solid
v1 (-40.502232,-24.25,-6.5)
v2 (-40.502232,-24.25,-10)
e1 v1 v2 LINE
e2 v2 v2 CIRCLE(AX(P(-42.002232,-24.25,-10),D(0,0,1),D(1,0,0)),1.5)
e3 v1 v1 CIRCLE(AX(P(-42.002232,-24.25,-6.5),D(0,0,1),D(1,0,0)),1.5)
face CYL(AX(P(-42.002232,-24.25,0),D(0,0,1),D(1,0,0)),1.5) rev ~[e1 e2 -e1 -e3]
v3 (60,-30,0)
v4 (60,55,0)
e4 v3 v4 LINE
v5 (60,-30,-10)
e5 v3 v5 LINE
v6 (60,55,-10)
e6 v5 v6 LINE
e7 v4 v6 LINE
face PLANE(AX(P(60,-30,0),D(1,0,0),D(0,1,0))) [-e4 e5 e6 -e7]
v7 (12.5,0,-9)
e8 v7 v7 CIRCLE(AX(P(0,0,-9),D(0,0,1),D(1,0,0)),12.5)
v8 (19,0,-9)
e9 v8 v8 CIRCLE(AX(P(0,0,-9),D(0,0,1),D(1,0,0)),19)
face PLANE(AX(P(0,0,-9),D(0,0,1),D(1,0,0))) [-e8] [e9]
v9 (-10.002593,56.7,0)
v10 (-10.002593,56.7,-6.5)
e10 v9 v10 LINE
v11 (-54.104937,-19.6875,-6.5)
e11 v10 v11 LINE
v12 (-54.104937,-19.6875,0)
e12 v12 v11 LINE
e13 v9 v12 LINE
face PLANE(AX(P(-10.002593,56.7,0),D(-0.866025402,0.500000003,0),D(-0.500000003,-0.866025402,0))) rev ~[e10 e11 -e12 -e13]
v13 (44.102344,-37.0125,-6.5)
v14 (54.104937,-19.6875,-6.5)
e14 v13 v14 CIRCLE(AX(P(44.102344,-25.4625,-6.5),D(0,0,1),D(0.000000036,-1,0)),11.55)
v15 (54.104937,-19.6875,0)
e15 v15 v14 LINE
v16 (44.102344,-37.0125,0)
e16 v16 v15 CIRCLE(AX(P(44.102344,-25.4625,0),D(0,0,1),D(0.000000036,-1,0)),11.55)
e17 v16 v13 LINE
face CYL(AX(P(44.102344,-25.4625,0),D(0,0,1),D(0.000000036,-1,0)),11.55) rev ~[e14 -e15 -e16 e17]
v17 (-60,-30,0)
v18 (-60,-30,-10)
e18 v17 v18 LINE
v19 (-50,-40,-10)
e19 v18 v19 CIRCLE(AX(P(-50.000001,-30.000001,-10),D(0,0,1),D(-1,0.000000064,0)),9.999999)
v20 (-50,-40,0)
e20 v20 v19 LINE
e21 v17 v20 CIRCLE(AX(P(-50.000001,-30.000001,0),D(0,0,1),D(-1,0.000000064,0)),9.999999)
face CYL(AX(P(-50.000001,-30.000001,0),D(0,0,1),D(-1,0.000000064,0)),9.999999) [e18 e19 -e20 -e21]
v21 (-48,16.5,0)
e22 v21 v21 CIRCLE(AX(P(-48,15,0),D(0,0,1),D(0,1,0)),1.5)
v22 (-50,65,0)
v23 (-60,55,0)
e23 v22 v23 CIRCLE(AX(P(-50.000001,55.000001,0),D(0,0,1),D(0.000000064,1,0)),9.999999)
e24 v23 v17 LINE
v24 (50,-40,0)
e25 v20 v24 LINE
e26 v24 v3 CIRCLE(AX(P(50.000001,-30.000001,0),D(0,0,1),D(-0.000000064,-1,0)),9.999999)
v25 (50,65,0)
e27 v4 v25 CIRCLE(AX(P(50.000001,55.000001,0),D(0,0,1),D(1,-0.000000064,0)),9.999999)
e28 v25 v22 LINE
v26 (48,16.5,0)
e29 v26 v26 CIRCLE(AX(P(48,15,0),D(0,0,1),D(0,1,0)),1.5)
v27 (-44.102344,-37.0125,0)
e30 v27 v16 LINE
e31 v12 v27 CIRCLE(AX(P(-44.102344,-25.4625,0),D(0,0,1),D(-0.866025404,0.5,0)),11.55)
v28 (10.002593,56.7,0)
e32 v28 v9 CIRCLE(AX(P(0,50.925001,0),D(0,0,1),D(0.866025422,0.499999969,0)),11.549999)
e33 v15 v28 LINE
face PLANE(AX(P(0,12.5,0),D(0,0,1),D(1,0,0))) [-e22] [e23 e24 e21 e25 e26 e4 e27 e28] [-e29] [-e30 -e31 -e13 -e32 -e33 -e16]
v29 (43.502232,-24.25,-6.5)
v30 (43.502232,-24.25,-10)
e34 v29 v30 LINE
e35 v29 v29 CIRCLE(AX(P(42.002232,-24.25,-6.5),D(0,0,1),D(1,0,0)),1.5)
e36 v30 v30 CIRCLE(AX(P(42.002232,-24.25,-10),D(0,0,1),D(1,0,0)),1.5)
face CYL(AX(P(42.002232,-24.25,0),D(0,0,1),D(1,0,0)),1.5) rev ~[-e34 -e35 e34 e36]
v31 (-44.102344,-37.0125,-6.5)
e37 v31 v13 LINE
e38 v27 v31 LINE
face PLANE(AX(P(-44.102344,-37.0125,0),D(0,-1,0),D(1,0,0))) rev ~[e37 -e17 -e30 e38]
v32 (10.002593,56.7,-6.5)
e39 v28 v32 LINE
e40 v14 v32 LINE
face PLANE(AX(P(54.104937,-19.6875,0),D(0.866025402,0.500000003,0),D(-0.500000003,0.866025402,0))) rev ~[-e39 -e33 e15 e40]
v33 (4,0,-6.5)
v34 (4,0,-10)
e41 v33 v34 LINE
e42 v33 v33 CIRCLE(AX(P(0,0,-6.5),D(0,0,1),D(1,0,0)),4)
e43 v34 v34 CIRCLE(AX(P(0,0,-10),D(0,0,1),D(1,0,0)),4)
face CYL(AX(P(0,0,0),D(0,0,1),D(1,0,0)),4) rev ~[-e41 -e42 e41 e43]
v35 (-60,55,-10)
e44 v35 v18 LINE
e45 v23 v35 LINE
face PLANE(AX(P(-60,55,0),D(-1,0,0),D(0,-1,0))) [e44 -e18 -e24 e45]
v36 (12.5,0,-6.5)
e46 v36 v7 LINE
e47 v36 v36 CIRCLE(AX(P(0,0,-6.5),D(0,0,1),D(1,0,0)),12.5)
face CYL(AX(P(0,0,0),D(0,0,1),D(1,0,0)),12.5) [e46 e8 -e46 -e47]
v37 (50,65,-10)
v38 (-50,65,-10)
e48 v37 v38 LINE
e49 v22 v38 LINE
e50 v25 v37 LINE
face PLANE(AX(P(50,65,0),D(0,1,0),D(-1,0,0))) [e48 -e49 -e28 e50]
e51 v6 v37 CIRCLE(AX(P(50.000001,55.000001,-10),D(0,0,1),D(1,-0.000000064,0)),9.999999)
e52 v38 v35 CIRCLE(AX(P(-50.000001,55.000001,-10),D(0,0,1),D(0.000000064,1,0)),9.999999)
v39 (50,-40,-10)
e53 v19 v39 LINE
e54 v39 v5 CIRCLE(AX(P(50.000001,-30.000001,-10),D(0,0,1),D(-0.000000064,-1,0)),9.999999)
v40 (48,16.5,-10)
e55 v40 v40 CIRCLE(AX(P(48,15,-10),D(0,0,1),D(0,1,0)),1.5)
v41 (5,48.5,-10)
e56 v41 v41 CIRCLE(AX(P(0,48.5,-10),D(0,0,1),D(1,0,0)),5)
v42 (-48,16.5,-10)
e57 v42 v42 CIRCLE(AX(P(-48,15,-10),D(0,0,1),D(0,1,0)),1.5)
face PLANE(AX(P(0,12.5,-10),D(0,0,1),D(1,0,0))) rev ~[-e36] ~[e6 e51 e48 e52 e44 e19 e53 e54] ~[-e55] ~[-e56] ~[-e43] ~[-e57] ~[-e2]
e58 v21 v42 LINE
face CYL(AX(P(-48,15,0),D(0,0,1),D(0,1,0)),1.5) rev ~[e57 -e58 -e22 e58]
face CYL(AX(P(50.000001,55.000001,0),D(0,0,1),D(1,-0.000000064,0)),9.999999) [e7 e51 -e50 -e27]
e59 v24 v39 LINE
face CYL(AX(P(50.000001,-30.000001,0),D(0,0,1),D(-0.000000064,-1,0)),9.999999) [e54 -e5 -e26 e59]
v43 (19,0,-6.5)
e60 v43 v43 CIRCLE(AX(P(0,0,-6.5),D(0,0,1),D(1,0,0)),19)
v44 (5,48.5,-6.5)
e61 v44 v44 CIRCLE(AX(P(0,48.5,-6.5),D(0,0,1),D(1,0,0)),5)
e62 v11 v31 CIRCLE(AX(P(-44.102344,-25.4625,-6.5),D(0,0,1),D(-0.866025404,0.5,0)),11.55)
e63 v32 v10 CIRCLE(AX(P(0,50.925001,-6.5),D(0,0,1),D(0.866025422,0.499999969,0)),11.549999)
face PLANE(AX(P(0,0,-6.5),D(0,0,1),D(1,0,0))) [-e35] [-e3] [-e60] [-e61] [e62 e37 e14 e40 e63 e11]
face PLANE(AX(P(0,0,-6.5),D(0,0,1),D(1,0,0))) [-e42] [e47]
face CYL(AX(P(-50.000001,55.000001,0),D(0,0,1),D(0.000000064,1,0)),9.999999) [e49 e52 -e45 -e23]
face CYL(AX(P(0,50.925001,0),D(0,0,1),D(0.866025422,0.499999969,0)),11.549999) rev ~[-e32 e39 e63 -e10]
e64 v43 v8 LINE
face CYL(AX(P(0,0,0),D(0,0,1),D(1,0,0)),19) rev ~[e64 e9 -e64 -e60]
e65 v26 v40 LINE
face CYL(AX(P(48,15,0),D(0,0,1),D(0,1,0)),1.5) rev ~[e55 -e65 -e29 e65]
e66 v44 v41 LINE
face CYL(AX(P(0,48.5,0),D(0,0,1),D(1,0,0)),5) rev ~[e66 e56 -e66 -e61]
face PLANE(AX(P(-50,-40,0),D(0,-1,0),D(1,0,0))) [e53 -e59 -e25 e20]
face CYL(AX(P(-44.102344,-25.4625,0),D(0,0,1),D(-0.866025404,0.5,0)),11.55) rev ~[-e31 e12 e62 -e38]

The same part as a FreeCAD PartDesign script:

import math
import FreeCAD as App
import Part
import Sketcher
from FreeCAD import Vector
Q = App.Units.Quantity

doc = App.newDocument("Part")
body = doc.addObject("PartDesign::Body", "Body")

sketch1 = body.newObject("Sketcher::SketchObject", "Sketch")
sketch1.AttachmentSupport = (doc.getObject("XY_Plane"), [""])
sketch1.MapMode = "FlatFace"
sketch1.addGeometry(Part.LineSegment(Vector(-50, -40, 0), Vector(50, -40, 0)), False)
sketch1.addGeometry(Part.ArcOfCircle(Part.Circle(Vector(50.000001, -30.000001, 0), Vector(0, 0, 1), 9.999999), math.radians(-90.000004), math.radians(0.000004)), False)
sketch1.addGeometry(Part.LineSegment(Vector(60, -30, 0), Vector(60, 55, 0)), False)
sketch1.addGeometry(Part.ArcOfCircle(Part.Circle(Vector(50.000001, 55.000001, 0), Vector(0, 0, 1), 9.999999), math.radians(-0.000004), math.radians(90.000004)), False)
sketch1.addGeometry(Part.LineSegment(Vector(50, 65, 0), Vector(-50, 65, 0)), False)
sketch1.addGeometry(Part.ArcOfCircle(Part.Circle(Vector(-50.000001, 55.000001, 0), Vector(0, 0, 1), 9.999999), math.radians(89.999996), math.radians(180.000004)), False)
sketch1.addGeometry(Part.LineSegment(Vector(-60, 55, 0), Vector(-60, -30, 0)), False)
sketch1.addGeometry(Part.ArcOfCircle(Part.Circle(Vector(-50.000001, -30.000001, 0), Vector(0, 0, 1), 9.999999), math.radians(179.999996), math.radians(270.000004)), False)
sketch1.addConstraint(Sketcher.Constraint("Tangent", 0, 2, 1, 1))
sketch1.addConstraint(Sketcher.Constraint("Tangent", 1, 2, 2, 1))
sketch1.addConstraint(Sketcher.Constraint("Tangent", 2, 2, 3, 1))
sketch1.addConstraint(Sketcher.Constraint("Tangent", 3, 2, 4, 1))
sketch1.addConstraint(Sketcher.Constraint("Tangent", 4, 2, 5, 1))
sketch1.addConstraint(Sketcher.Constraint("Tangent", 5, 2, 6, 1))
sketch1.addConstraint(Sketcher.Constraint("Tangent", 6, 2, 7, 1))
sketch1.addConstraint(Sketcher.Constraint("Tangent", 7, 2, 0, 1))
sketch1.addConstraint(Sketcher.Constraint("Horizontal", 0))
sketch1.addConstraint(Sketcher.Constraint("Vertical", 2))
sketch1.addConstraint(Sketcher.Constraint("Horizontal", 4))
sketch1.addConstraint(Sketcher.Constraint("Vertical", 6))
sketch1.addConstraint(Sketcher.Constraint("Equal", 1, 3))
sketch1.addConstraint(Sketcher.Constraint("Equal", 3, 5))
sketch1.addConstraint(Sketcher.Constraint("Equal", 5, 7))
sketch1.addConstraint(Sketcher.Constraint("Radius", 1, Q("9.999999 mm")))
sketch1.addConstraint(Sketcher.Constraint("DistanceX", 0, 1, 0, 2, Q("100 mm")))
sketch1.addConstraint(Sketcher.Constraint("DistanceY", 2, 1, 2, 2, Q("85 mm")))
sketch1.addConstraint(Sketcher.Constraint("DistanceX", -1, 1, 1, 3, Q("50.000001 mm")))
sketch1.addConstraint(Sketcher.Constraint("DistanceY", 1, 3, -1, 1, Q("30.000001 mm")))
pad1 = body.newObject("PartDesign::Pad", "Pad")
pad1.Profile = sketch1
pad1.Length = 10
pad1.Reversed = True

sketch2 = body.newObject("Sketcher::SketchObject", "Sketch001")
sketch2.AttachmentSupport = (doc.getObject("XY_Plane"), [""])
sketch2.MapMode = "FlatFace"
sketch2.addGeometry(Part.Circle(Vector(-42.002232, -24.25, 0), Vector(0, 0, 1), 1.5), False)
sketch2.addGeometry(Part.Circle(Vector(42.002232, -24.25, 0), Vector(0, 0, 1), 1.5), False)
sketch2.addGeometry(Part.Circle(Vector(0, 48.5, 0), Vector(0, 0, 1), 5), False)
sketch2.addGeometry(Part.Circle(Vector(0, 0, 0), Vector(0, 0, 1), 4), False)
sketch2.addConstraint(Sketcher.Constraint("Coincident", 3, 3, -1, 1))
sketch2.addConstraint(Sketcher.Constraint("Equal", 0, 1))
sketch2.addConstraint(Sketcher.Constraint("Symmetric", 0, 3, 1, 3, -2))
sketch2.addConstraint(Sketcher.Constraint("PointOnObject", 2, 3, -2))
sketch2.addConstraint(Sketcher.Constraint("Diameter", 0, Q("3 mm")))
sketch2.addConstraint(Sketcher.Constraint("Diameter", 2, Q("10 mm")))
sketch2.addConstraint(Sketcher.Constraint("Diameter", 3, Q("8 mm")))
sketch2.addConstraint(Sketcher.Constraint("DistanceY", -1, 1, 2, 3, Q("48.5 mm")))
sketch2.addConstraint(Sketcher.Constraint("DistanceY", 0, 3, -1, 1, Q("24.25 mm")))
sketch2.addConstraint(Sketcher.Constraint("DistanceX", 0, 3, -1, 1, Q("42.002232 mm")))
pocket1 = body.newObject("PartDesign::Pocket", "Pocket")
pocket1.Profile = sketch2
pocket1.Type = "ThroughAll"

sketch3 = body.newObject("Sketcher::SketchObject", "Sketch002")
sketch3.AttachmentSupport = (doc.getObject("XY_Plane"), [""])
sketch3.MapMode = "FlatFace"
sketch3.addGeometry(Part.ArcOfCircle(Part.Circle(Vector(0, 50.925001, 0), Vector(0, 0, 1), 11.549999), math.radians(29.999998), math.radians(150.000002)), False)
sketch3.addGeometry(Part.LineSegment(Vector(-10.002593, 56.7, 0), Vector(-54.104937, -19.6875, 0)), False)
sketch3.addGeometry(Part.ArcOfCircle(Part.Circle(Vector(-44.102344, -25.4625, 0), Vector(0, 0, 1), 11.55), math.radians(150), math.radians(269.999998)), False)
sketch3.addGeometry(Part.LineSegment(Vector(-44.102344, -37.0125, 0), Vector(44.102344, -37.0125, 0)), False)
sketch3.addGeometry(Part.ArcOfCircle(Part.Circle(Vector(44.102344, -25.4625, 0), Vector(0, 0, 1), 11.55), math.radians(-89.999998), math.radians(30)), False)
sketch3.addGeometry(Part.LineSegment(Vector(54.104937, -19.6875, 0), Vector(10.002593, 56.7, 0)), False)
sketch3.addConstraint(Sketcher.Constraint("Tangent", 0, 2, 1, 1))
sketch3.addConstraint(Sketcher.Constraint("Tangent", 1, 2, 2, 1))
sketch3.addConstraint(Sketcher.Constraint("Tangent", 2, 2, 3, 1))
sketch3.addConstraint(Sketcher.Constraint("Tangent", 3, 2, 4, 1))
sketch3.addConstraint(Sketcher.Constraint("Tangent", 4, 2, 5, 1))
sketch3.addConstraint(Sketcher.Constraint("Tangent", 5, 2, 0, 1))
sketch3.addConstraint(Sketcher.Constraint("Horizontal", 3))
sketch3.addConstraint(Sketcher.Constraint("Equal", 0, 2))
sketch3.addConstraint(Sketcher.Constraint("Equal", 2, 4))
sketch3.addConstraint(Sketcher.Constraint("Symmetric", 1, 2, 4, 2, -2))
sketch3.addConstraint(Sketcher.Constraint("Angle", 1, Q("-120 deg")))
sketch3.addConstraint(Sketcher.Constraint("Radius", 0, Q("11.549999 mm")))
sketch3.addConstraint(Sketcher.Constraint("DistanceY", -1, 1, 0, 2, Q("56.7 mm")))
sketch3.addConstraint(Sketcher.Constraint("DistanceX", 3, 1, 3, 2, Q("88.204688 mm")))
pocket2 = body.newObject("PartDesign::Pocket", "Pocket001")
pocket2.Profile = sketch3
pocket2.Length = 6.5

sketch4 = body.newObject("Sketcher::SketchObject", "Sketch003")
sketch4.AttachmentSupport = (doc.getObject("XY_Plane"), [""])
sketch4.MapMode = "FlatFace"
sketch4.addGeometry(Part.Circle(Vector(0, 0, 0), Vector(0, 0, 1), 19), False)
sketch4.addGeometry(Part.Circle(Vector(0, 0, 0), Vector(0, 0, 1), 12.5), False)
sketch4.addConstraint(Sketcher.Constraint("Coincident", 0, 3, -1, 1))
sketch4.addConstraint(Sketcher.Constraint("Coincident", 1, 3, -1, 1))
sketch4.addConstraint(Sketcher.Constraint("Diameter", 0, Q("38 mm")))
sketch4.addConstraint(Sketcher.Constraint("Diameter", 1, Q("25 mm")))
pocket3 = body.newObject("PartDesign::Pocket", "Pocket002")
pocket3.Profile = sketch4
pocket3.Length = 9

sketch5 = body.newObject("Sketcher::SketchObject", "Sketch004")
sketch5.AttachmentSupport = (doc.getObject("XY_Plane"), [""])
sketch5.MapMode = "FlatFace"
sketch5.addGeometry(Part.Circle(Vector(-48, 15, 0), Vector(0, 0, 1), 1.5), False)
sketch5.addGeometry(Part.Circle(Vector(48, 15, 0), Vector(0, 0, 1), 1.5), False)
sketch5.addConstraint(Sketcher.Constraint("Equal", 0, 1))
sketch5.addConstraint(Sketcher.Constraint("Symmetric", 0, 3, 1, 3, -2))
sketch5.addConstraint(Sketcher.Constraint("Diameter", 0, Q("3 mm")))
sketch5.addConstraint(Sketcher.Constraint("DistanceX", 0, 3, -1, 1, Q("48 mm")))
sketch5.addConstraint(Sketcher.Constraint("DistanceY", -1, 1, 0, 3, Q("15 mm")))
pocket4 = body.newObject("PartDesign::Pocket", "Pocket003")
pocket4.Profile = sketch5
pocket4.Type = "ThroughAll"

doc.recompute()
